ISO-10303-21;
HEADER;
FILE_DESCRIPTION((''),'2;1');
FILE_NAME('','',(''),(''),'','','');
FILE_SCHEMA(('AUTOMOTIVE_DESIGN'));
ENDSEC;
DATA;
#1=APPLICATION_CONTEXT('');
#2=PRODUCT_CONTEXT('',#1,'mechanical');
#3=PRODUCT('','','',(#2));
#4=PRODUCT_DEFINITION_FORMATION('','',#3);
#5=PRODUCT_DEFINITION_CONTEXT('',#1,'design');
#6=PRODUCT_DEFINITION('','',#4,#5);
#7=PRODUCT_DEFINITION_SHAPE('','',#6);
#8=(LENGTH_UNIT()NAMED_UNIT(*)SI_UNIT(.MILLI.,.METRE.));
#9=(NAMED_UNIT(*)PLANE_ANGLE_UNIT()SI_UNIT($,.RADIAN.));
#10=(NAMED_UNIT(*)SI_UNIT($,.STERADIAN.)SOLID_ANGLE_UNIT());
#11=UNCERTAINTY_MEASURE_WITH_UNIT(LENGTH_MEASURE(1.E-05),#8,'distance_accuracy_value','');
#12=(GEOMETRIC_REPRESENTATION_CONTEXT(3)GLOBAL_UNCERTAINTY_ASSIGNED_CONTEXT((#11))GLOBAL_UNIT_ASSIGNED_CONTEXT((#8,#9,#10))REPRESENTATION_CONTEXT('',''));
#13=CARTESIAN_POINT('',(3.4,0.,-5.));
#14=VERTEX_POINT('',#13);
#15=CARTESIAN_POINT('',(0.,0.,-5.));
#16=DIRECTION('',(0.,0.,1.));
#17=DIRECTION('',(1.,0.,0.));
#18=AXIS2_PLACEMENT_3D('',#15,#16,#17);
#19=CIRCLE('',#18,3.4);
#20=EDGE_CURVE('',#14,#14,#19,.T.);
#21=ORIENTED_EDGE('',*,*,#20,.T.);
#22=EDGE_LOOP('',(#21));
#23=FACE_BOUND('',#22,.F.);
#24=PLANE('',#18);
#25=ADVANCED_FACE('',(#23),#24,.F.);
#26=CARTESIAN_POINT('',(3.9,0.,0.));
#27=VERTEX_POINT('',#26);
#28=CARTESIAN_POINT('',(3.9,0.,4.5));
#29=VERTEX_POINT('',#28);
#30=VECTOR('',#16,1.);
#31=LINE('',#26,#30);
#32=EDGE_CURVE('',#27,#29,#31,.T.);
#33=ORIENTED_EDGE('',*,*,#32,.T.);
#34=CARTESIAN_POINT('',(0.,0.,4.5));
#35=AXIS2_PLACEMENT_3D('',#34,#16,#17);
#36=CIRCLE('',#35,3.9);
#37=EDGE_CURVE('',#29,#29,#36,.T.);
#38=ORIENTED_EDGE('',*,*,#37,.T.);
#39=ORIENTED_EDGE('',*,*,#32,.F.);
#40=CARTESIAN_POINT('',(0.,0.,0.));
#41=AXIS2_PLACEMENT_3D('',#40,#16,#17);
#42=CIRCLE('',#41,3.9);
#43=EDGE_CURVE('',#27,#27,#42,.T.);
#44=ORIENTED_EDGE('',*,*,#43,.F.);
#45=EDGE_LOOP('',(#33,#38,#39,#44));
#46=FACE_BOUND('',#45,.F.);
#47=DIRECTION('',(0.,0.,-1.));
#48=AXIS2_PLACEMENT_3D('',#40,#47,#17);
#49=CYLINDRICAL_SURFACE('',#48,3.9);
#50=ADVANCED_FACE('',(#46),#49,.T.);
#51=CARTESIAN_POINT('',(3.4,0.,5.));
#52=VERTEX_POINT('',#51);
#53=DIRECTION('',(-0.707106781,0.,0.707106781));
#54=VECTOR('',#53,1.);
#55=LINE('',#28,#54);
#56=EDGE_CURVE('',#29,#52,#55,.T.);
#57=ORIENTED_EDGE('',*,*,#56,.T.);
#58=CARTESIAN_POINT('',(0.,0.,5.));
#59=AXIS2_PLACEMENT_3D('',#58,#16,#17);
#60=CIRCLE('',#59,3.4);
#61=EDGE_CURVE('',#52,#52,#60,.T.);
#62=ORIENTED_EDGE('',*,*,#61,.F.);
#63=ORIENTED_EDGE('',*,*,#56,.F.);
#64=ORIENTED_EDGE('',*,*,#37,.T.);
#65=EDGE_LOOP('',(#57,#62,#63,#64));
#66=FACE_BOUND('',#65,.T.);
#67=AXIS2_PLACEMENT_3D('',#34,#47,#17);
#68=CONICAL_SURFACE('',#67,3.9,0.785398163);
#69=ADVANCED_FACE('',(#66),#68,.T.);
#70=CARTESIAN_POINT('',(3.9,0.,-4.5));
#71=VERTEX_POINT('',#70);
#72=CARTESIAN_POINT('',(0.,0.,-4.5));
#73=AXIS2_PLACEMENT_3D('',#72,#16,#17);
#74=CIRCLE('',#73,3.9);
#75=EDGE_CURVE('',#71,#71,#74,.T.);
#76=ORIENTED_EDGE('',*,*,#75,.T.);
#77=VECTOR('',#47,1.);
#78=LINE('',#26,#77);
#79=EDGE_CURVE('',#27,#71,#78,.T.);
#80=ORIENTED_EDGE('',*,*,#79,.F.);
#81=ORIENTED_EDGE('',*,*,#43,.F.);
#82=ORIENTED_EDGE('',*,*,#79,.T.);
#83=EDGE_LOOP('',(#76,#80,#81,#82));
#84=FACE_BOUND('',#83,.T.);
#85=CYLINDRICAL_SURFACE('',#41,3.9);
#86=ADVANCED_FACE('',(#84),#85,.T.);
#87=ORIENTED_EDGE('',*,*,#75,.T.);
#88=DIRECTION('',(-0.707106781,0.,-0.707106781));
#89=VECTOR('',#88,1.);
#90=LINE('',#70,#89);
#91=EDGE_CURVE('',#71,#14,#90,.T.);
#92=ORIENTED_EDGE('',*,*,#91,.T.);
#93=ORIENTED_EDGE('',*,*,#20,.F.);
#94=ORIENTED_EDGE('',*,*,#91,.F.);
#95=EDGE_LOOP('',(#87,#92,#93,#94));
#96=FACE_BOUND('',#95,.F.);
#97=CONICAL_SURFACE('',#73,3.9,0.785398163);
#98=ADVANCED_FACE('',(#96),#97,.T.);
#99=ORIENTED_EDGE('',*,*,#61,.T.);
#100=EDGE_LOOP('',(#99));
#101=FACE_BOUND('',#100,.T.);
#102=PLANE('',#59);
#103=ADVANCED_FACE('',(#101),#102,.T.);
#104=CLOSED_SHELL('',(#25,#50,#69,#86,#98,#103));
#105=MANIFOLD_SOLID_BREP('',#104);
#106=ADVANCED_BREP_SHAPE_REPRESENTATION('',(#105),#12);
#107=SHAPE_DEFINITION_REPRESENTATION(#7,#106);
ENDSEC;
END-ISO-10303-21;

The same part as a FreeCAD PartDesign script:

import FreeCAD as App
import Part
import Sketcher


def edges_at(feature, points):
    """Names of the edges that pass closest to the given points."""
    edges = feature.Shape.Edges
    near = lambda p: min(range(len(edges)), key=lambda i: edges[i].distToShape(Part.Vertex(*p))[0])
    return sorted({f"Edge{near(p) + 1}" for p in points})

doc = App.newDocument("Part")
body = doc.addObject("PartDesign::Body", "Body")

sketch1 = body.newObject("Sketcher::SketchObject", "Sketch")
sketch1.AttachmentSupport = (doc.getObject("XY_Plane"), [""])
sketch1.MapMode = "FlatFace"
sketch1.addGeometry(Part.Circle(App.Vector(0, 0, 0), App.Vector(0, 0, 1), 3.9), False)
sketch1.addConstraint([
    Sketcher.Constraint("Coincident", 0, 3, -1, 1),
    Sketcher.Constraint("Diameter", 0, 7.8),
])
pad1 = body.newObject("PartDesign::Pad", "Pad")
pad1.Profile = sketch1
pad1.Length = 10
pad1.Midplane = True
doc.recompute()

chamfer = body.newObject("PartDesign::Chamfer", "Chamfer")
chamfer.Base = (pad1, edges_at(pad1, [(-3.9, 0, 5), (-3.9, 0, -5)]))
chamfer.Size = 0.5

doc.recompute()
